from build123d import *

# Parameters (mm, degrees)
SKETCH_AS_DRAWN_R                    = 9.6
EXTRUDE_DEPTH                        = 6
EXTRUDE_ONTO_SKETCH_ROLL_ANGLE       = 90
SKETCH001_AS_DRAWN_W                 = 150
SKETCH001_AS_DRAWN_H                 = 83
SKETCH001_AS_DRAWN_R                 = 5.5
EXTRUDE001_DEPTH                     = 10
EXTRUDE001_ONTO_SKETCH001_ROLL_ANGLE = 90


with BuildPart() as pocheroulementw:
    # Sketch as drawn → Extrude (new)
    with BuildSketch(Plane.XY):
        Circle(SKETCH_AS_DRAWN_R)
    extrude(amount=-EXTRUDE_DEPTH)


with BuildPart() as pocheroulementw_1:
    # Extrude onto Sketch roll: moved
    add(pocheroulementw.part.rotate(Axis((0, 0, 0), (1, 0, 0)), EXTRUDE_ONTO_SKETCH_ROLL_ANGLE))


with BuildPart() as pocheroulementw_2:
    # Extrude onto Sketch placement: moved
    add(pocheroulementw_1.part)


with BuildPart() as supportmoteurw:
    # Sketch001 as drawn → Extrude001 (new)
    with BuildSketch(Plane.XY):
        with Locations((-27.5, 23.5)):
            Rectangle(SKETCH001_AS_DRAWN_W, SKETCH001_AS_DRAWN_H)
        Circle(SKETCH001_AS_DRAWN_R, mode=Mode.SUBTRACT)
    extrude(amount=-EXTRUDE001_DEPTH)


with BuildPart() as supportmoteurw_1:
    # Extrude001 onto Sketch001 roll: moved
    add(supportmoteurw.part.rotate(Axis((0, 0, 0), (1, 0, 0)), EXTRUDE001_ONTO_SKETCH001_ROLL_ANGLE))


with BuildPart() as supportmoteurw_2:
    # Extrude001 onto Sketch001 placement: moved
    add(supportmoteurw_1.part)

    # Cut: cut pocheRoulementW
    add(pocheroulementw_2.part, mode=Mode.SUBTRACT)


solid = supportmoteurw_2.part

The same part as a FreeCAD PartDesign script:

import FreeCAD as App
import Part
import Sketcher

V = App.Vector


def add_polygon(sketch, points):
    """Adds a closed chain of lines whose ends are joined by coincident constraints."""
    first, n = sketch.GeometryCount, len(points)
    for a, b in zip(points, points[1:] + points[:1]):
        sketch.addGeometry(Part.LineSegment(App.Vector(*a, 0), App.Vector(*b, 0)), False)
    for i in range(n):
        sketch.addConstraint(Sketcher.Constraint("Coincident", first + i, 2, first + (i + 1) % n, 1))

doc = App.newDocument("Part")
body = doc.addObject("PartDesign::Body", "Body")

# Sketch on XY plane
sketch1 = body.newObject("Sketcher::SketchObject", "Sketch")
sketch1.AttachmentSupport = (doc.getObject("XY_Plane"), [""])
sketch1.MapMode = "FlatFace"
sketch1.addGeometry(Part.Circle(V(0, 0, 0), V(0, 0, 1), 10), False)
sketch1.addConstraint(Sketcher.Constraint("Coincident", 0, 3, -1, 1))
sketch1.addConstraint(Sketcher.Constraint("Diameter", 0, 19.2))
pad1 = body.newObject("PartDesign::Pad", "Pad")
pad1.Profile = sketch1
pad1.Length = 6
pad1.Reversed = True
body2 = doc.addObject("PartDesign::Body", "Body001")
doc.recompute()

body.Placement = App.Placement(V(0, 0, 0), App.Rotation(V(1, 0, 0), 90))
boolean = body2.newObject("PartDesign::Boolean", "Boolean")
boolean.Type = "Fuse"
boolean.addObjects([body])
body3 = doc.addObject("PartDesign::Body", "Body002")

# Sketch on XY plane
sketch2 = body3.newObject("Sketcher::SketchObject", "Sketch001")
sketch2.AttachmentSupport = (doc.getObject("XY_Plane002"), [""])
sketch2.MapMode = "FlatFace"
add_polygon(sketch2, [(-102, 65), (-102, -18), (48, -18), (48, 65)])  # lines 0-3
sketch2.addGeometry(Part.Circle(V(0, 0, 0), V(0, 0, 1), 6), False)  # 4
sketch2.addConstraint(Sketcher.Constraint("Vertical", 0))
sketch2.addConstraint(Sketcher.Constraint("Horizontal", 1))
sketch2.addConstraint(Sketcher.Constraint("Vertical", 2))
sketch2.addConstraint(Sketcher.Constraint("Horizontal", 3))
sketch2.addConstraint(Sketcher.Constraint("Coincident", 4, 3, -1, 1))
sketch2.addConstraint(Sketcher.Constraint("Diameter", 4, 11.0))
sketch2.addConstraint(Sketcher.Constraint("DistanceX", 1, 1, 1, 2, 150.0))
sketch2.addConstraint(Sketcher.Constraint("DistanceY", 0, 2, 0, 1, 83.0))
sketch2.addConstraint(Sketcher.Constraint("DistanceY", 0, 2, -1, 1, 18.0))
sketch2.addConstraint(Sketcher.Constraint("DistanceX", 0, 2, -1, 1, 102.5))
pad2 = body3.newObject("PartDesign::Pad", "Pad001")
pad2.Profile = sketch2
pad2.Length = 10
pad2.Reversed = True
body4 = doc.addObject("PartDesign::Body", "Body003")
doc.recompute()

body3.Placement = App.Placement(V(0, 0, 0), App.Rotation(V(1, 0, 0), 90))
boolean2 = body4.newObject("PartDesign::Boolean", "Boolean001")
boolean2.Type = "Fuse"
boolean2.addObjects([body3])
doc.recompute()

boolean3 = body4.newObject("PartDesign::Boolean", "Boolean002")
boolean3.Type = "Cut"
boolean3.addObjects([body2])

doc.recompute()
